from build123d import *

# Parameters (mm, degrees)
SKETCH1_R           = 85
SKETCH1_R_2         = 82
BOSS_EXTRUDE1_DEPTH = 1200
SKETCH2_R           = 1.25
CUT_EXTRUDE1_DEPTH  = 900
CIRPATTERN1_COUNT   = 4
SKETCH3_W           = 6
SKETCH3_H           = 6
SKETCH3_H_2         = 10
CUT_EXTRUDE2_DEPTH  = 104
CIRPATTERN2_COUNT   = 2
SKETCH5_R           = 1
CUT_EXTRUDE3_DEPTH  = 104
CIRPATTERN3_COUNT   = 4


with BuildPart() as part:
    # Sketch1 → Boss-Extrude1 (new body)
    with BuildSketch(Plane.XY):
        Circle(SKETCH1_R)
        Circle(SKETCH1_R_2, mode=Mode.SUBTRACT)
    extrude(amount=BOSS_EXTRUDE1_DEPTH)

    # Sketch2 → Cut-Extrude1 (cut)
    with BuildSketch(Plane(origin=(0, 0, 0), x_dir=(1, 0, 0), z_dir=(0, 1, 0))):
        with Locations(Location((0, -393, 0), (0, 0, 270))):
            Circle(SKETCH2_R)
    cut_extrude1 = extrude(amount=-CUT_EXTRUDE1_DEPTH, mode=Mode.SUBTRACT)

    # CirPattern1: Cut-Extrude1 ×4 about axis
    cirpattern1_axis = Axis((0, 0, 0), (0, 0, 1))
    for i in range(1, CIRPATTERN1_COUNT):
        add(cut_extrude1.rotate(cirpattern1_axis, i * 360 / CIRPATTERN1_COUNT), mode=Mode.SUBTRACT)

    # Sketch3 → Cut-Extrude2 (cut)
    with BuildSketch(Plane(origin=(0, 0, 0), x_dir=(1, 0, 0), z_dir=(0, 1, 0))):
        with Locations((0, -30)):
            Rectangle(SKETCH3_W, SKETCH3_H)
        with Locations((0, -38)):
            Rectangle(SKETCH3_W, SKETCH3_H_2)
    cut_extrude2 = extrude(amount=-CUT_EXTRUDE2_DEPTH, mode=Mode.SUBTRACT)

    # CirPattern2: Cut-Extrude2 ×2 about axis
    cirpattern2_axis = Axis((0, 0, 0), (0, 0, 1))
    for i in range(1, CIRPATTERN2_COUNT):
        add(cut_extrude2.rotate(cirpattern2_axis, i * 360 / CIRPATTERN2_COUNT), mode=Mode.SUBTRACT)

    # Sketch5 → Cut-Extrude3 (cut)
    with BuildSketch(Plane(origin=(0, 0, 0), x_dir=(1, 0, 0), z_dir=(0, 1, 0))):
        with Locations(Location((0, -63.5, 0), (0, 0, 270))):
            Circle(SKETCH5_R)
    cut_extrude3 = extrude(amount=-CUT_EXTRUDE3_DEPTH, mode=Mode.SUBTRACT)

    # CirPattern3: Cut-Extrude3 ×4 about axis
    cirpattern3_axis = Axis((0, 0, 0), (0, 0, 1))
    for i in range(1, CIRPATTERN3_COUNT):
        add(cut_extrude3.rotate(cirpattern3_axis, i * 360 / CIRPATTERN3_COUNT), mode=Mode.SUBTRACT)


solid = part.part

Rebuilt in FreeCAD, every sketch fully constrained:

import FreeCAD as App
import Part
import Sketcher

V = App.Vector
Q = App.Units.Quantity


def add_polygon(sketch, points):
    """Adds a closed chain of lines whose ends are joined by coincident constraints."""
    first, n = sketch.GeometryCount, len(points)
    for a, b in zip(points, points[1:] + points[:1]):
        sketch.addGeometry(Part.LineSegment(App.Vector(*a, 0), App.Vector(*b, 0)), False)
    for i in range(n):
        sketch.addConstraint(Sketcher.Constraint("Coincident", first + i, 2, first + (i + 1) % n, 1))

doc = App.newDocument("Part")
body = doc.addObject("PartDesign::Body", "Body")

# Sketch on XY plane
sketch1 = doc.addObject("Sketcher::SketchObject", "Sketch")
body.addObject(sketch1)
sketch1.AttachmentSupport = (doc.XY_Plane, [""])
sketch1.MapMode = "FlatFace"
sketch1.addGeometry([
    Part.Circle(V(0, 0, 0), V(0, 0, 1), 85),
    Part.Circle(V(0, 0, 0), V(0, 0, 1), 82),
], False)
sketch1.addConstraint([
    Sketcher.Constraint("Coincident", 0, 3, -1, 1),
    Sketcher.Constraint("Coincident", 1, 3, -1, 1),
    Sketcher.Constraint("Diameter", 0, Q("170 mm")),
    Sketcher.Constraint("Diameter", 1, Q("164 mm")),
])
pad1 = doc.addObject("PartDesign::Pad", "Pad")
body.addObject(pad1)
pad1.Profile = sketch1
pad1.Length = 1200

# Sketch on XZ plane
sketch2 = doc.addObject("Sketcher::SketchObject", "Sketch001")
body.addObject(sketch2)
sketch2.AttachmentSupport = (doc.XZ_Plane, [""])
sketch2.MapMode = "FlatFace"
sketch2.addGeometry(Part.Circle(V(0, 393, 0), V(0, 0, 1), 1.2), False)
sketch2.addConstraint([
    Sketcher.Constraint("PointOnObject", 0, 3, -2),
    Sketcher.Constraint("Diameter", 0, Q("2.5 mm")),
    Sketcher.Constraint("DistanceY", -1, 1, 0, 3, Q("393 mm")),
])
pocket1 = doc.addObject("PartDesign::Pocket", "Pocket")
body.addObject(pocket1)
pocket1.Profile = sketch2
pocket1.Length = 900
pocket1.Reversed = True
doc.recompute()

polarpattern = doc.addObject("PartDesign::PolarPattern", "PolarPattern")
body.addObject(polarpattern)
polarpattern.Originals = [pocket1]
polarpattern.Axis = (doc.Z_Axis, [""])
polarpattern.Angle = 360
polarpattern.Occurrences = 4
body.Tip = polarpattern

# Sketch on XZ plane
sketch3 = doc.addObject("Sketcher::SketchObject", "Sketch002")
body.addObject(sketch3)
sketch3.AttachmentSupport = (doc.XZ_Plane, [""])
sketch3.MapMode = "FlatFace"
add_polygon(sketch3, [(-3, 27), (-3, 43), (3, 43), (3, 27)])  # lines 0-3
sketch3.addConstraint([
    Sketcher.Constraint("Vertical", 0),
    Sketcher.Constraint("Horizontal", 1),
    Sketcher.Constraint("Vertical", 2),
    Sketcher.Constraint("Horizontal", 3),
    Sketcher.Constraint("DistanceX", 1, 1, 1, 2, Q("6 mm")),
    Sketcher.Constraint("DistanceY", 0, 1, 0, 2, Q("16 mm")),
    Sketcher.Constraint("DistanceX", 0, 2, -1, 1, Q("3 mm")),
    Sketcher.Constraint("DistanceY", -1, 1, 0, 2, Q("43 mm")),
])
pocket2 = doc.addObject("PartDesign::Pocket", "Pocket001")
body.addObject(pocket2)
pocket2.Profile = sketch3
pocket2.Length = 104
pocket2.Reversed = True
doc.recompute()

polarpattern2 = doc.addObject("PartDesign::PolarPattern", "PolarPattern001")
body.addObject(polarpattern2)
polarpattern2.Originals = [pocket2]
polarpattern2.Axis = (doc.Z_Axis, [""])
polarpattern2.Angle = 360
polarpattern2.Occurrences = 2
body.Tip = polarpattern2

# Sketch on XZ plane
sketch4 = doc.addObject("Sketcher::SketchObject", "Sketch003")
body.addObject(sketch4)
sketch4.AttachmentSupport = (doc.XZ_Plane, [""])
sketch4.MapMode = "FlatFace"
sketch4.addGeometry(Part.Circle(V(0, 63.5, 0), V(0, 0, 1), 1), False)
sketch4.addConstraint([
    Sketcher.Constraint("PointOnObject", 0, 3, -2),
    Sketcher.Constraint("Diameter", 0, Q("2 mm")),
    Sketcher.Constraint("DistanceY", -1, 1, 0, 3, Q("63.5 mm")),
])
pocket3 = doc.addObject("PartDesign::Pocket", "Pocket002")
body.addObject(pocket3)
pocket3.Profile = sketch4
pocket3.Length = 104
pocket3.Reversed = True
doc.recompute()

polarpattern3 = doc.addObject("PartDesign::PolarPattern", "PolarPattern002")
body.addObject(polarpattern3)
polarpattern3.Originals = [pocket3]
polarpattern3.Axis = (doc.Z_Axis, [""])
polarpattern3.Angle = 360
polarpattern3.Occurrences = 4
body.Tip = polarpattern3

doc.recompute()
